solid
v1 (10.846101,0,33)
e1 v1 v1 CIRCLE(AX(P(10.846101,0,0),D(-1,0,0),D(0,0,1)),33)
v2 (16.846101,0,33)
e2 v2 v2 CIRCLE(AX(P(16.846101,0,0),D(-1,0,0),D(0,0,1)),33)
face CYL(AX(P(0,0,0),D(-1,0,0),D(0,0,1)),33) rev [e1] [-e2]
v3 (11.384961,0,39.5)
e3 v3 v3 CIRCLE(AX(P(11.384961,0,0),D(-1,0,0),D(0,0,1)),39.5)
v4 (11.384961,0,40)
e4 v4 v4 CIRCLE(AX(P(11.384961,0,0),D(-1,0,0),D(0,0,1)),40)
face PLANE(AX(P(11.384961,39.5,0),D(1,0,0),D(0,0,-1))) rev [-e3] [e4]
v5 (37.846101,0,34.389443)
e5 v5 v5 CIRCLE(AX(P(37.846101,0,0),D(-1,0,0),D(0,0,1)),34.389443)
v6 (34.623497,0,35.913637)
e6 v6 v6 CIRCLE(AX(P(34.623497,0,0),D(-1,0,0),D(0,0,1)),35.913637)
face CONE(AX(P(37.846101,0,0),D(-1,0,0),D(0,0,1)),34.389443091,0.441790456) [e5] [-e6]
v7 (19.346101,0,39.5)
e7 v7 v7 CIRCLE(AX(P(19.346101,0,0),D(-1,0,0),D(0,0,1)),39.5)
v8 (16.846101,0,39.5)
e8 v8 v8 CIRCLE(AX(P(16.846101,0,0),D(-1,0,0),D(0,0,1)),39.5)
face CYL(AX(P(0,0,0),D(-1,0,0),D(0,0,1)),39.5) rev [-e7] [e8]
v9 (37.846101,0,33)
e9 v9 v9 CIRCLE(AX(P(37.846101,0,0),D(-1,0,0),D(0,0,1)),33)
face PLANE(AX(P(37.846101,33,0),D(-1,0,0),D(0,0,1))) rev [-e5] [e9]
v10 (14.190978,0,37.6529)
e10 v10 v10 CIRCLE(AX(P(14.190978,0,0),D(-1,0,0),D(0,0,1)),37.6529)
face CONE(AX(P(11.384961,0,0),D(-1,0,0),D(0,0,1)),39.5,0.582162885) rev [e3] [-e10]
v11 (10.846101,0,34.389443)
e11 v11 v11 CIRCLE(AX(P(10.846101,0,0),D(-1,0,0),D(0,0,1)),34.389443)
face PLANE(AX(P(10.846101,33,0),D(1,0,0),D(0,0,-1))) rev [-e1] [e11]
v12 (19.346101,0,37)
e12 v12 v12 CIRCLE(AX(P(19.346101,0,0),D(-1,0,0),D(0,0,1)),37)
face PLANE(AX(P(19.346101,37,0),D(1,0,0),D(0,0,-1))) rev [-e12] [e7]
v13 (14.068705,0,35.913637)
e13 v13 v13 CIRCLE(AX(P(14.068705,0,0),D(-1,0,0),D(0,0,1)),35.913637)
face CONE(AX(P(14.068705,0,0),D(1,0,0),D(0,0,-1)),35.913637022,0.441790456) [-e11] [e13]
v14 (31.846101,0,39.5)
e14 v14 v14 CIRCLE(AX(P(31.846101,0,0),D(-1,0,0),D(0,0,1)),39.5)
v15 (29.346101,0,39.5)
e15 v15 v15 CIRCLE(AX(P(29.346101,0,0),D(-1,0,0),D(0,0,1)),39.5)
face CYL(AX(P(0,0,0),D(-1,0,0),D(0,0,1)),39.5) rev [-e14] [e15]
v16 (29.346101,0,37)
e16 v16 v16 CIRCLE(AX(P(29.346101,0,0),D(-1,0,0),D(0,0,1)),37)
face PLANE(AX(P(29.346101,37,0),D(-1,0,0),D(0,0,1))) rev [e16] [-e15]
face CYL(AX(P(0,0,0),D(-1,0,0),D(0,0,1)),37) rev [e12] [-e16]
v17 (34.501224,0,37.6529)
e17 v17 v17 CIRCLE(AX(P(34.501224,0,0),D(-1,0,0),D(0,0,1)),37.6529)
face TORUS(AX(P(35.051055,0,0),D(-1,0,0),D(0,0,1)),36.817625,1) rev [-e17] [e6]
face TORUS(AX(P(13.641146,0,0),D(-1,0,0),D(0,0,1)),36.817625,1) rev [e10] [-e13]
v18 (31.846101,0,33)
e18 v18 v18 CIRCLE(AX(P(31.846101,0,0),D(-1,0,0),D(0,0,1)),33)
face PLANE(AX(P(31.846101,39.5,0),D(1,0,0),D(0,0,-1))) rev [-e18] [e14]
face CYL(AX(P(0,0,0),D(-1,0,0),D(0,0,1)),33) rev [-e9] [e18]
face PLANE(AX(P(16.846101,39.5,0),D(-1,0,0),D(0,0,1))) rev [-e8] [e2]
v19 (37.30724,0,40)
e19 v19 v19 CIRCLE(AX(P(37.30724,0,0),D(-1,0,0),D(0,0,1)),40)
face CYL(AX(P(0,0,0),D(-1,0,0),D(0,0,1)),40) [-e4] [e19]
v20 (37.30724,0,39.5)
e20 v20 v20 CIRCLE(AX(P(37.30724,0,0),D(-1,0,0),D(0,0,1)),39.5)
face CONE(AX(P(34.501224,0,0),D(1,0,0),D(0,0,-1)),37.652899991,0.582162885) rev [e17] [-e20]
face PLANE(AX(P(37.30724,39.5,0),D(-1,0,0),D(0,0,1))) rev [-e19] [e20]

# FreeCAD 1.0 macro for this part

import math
import FreeCAD as App
import Part
import Sketcher

V = App.Vector

doc = App.newDocument("Part")
body = doc.addObject("PartDesign::Body", "Body")

sketch1 = body.newObject("Sketcher::SketchObject", "Sketch")
sketch1.AttachmentSupport = (doc.getObject("XY_Plane"), [""])
sketch1.MapMode = "FlatFace"
sketch1.addGeometry(Part.LineSegment(V(14.1, 35.9, 0), V(10.8, 34.4, 0)), False)
sketch1.addGeometry(Part.LineSegment(V(10.8, 34.4, 0), V(10.8, 33, 0)), False)
sketch1.addGeometry(Part.LineSegment(V(10.8, 33, 0), V(16.8, 33, 0)), False)
sketch1.addGeometry(Part.LineSegment(V(16.8, 33, 0), V(16.8, 39.5, 0)), False)
sketch1.addGeometry(Part.LineSegment(V(16.8, 39.5, 0), V(19.3, 39.5, 0)), False)
sketch1.addGeometry(Part.LineSegment(V(19.3, 39.5, 0), V(19.3, 37, 0)), False)
sketch1.addGeometry(Part.LineSegment(V(19.3, 37, 0), V(29.3, 37, 0)), False)
sketch1.addGeometry(Part.LineSegment(V(29.3, 37, 0), V(29.3, 39.5, 0)), False)
sketch1.addGeometry(Part.LineSegment(V(29.3, 39.5, 0), V(31.8, 39.5, 0)), False)
sketch1.addGeometry(Part.LineSegment(V(31.8, 39.5, 0), V(31.8, 33, 0)), False)
sketch1.addGeometry(Part.LineSegment(V(31.8, 33, 0), V(37.8, 33, 0)), False)
sketch1.addGeometry(Part.LineSegment(V(37.8, 33, 0), V(37.8, 34.4, 0)), False)
sketch1.addGeometry(Part.LineSegment(V(37.8, 34.4, 0), V(34.6, 35.9, 0)), False)
sketch1.addGeometry(Part.ArcOfCircle(Part.Circle(V(35.1, 36.8, 0), V(0, 0, 1), 1), math.radians(123), math.radians(245)), False)
sketch1.addGeometry(Part.LineSegment(V(34.5, 37.7, 0), V(37.3, 39.5, 0)), False)
sketch1.addGeometry(Part.LineSegment(V(37.3, 39.5, 0), V(37.3, 40, 0)), False)
sketch1.addGeometry(Part.LineSegment(V(37.3, 40, 0), V(11.4, 40, 0)), False)
sketch1.addGeometry(Part.LineSegment(V(11.4, 40, 0), V(11.4, 39.5, 0)), False)
sketch1.addGeometry(Part.LineSegment(V(11.4, 39.5, 0), V(14.2, 37.7, 0)), False)
sketch1.addGeometry(Part.ArcOfCircle(Part.Circle(V(13.6, 36.8, 0), V(0, 0, 1), 1), math.radians(-65), math.radians(57)), False)
sketch1.addConstraint(Sketcher.Constraint("Coincident", 0, 2, 1, 1))
sketch1.addConstraint(Sketcher.Constraint("Coincident", 1, 2, 2, 1))
sketch1.addConstraint(Sketcher.Constraint("Coincident", 2, 2, 3, 1))
sketch1.addConstraint(Sketcher.Constraint("Coincident", 3, 2, 4, 1))
sketch1.addConstraint(Sketcher.Constraint("Coincident", 4, 2, 5, 1))
sketch1.addConstraint(Sketcher.Constraint("Coincident", 5, 2, 6, 1))
sketch1.addConstraint(Sketcher.Constraint("Coincident", 6, 2, 7, 1))
sketch1.addConstraint(Sketcher.Constraint("Coincident", 7, 2, 8, 1))
sketch1.addConstraint(Sketcher.Constraint("Coincident", 8, 2, 9, 1))
sketch1.addConstraint(Sketcher.Constraint("Coincident", 9, 2, 10, 1))
sketch1.addConstraint(Sketcher.Constraint("Coincident", 10, 2, 11, 1))
sketch1.addConstraint(Sketcher.Constraint("Coincident", 11, 2, 12, 1))
sketch1.addConstraint(Sketcher.Constraint("Tangent", 12, 2, 13, 2))
sketch1.addConstraint(Sketcher.Constraint("Tangent", 13, 1, 14, 1))
sketch1.addConstraint(Sketcher.Constraint("Coincident", 14, 2, 15, 1))
sketch1.addConstraint(Sketcher.Constraint("Coincident", 15, 2, 16, 1))
sketch1.addConstraint(Sketcher.Constraint("Coincident", 16, 2, 17, 1))
sketch1.addConstraint(Sketcher.Constraint("Coincident", 17, 2, 18, 1))
sketch1.addConstraint(Sketcher.Constraint("Tangent", 18, 2, 19, 2))
sketch1.addConstraint(Sketcher.Constraint("Tangent", 19, 1, 0, 1))
sketch1.addConstraint(Sketcher.Constraint("Vertical", 1))
sketch1.addConstraint(Sketcher.Constraint("Horizontal", 2))
sketch1.addConstraint(Sketcher.Constraint("Vertical", 3))
sketch1.addConstraint(Sketcher.Constraint("Horizontal", 4))
sketch1.addConstraint(Sketcher.Constraint("Vertical", 5))
sketch1.addConstraint(Sketcher.Constraint("Horizontal", 6))
sketch1.addConstraint(Sketcher.Constraint("Vertical", 7))
sketch1.addConstraint(Sketcher.Constraint("Horizontal", 8))
sketch1.addConstraint(Sketcher.Constraint("Vertical", 9))
sketch1.addConstraint(Sketcher.Constraint("Horizontal", 10))
sketch1.addConstraint(Sketcher.Constraint("Vertical", 11))
sketch1.addConstraint(Sketcher.Constraint("Vertical", 15))
sketch1.addConstraint(Sketcher.Constraint("Horizontal", 16))
sketch1.addConstraint(Sketcher.Constraint("Vertical", 17))
sketch1.addConstraint(Sketcher.Constraint("Equal", 13, 19))
sketch1.addConstraint(Sketcher.Constraint("Horizontal", 13, 3, 19, 3))
sketch1.addConstraint(Sketcher.Constraint("Horizontal", 4, 2, 7, 2))
sketch1.addConstraint(Sketcher.Constraint("Horizontal", 2, 2, 9, 2))
sketch1.addConstraint(Sketcher.Constraint("Horizontal", 0, 2, 11, 2))
sketch1.addConstraint(Sketcher.Constraint("Horizontal", 8, 2, 14, 2))
sketch1.addConstraint(Sketcher.Constraint("Horizontal", 14, 2, 17, 2))
sketch1.addConstraint(Sketcher.Constraint("Horizontal", 13, 1, 18, 2))
sketch1.addConstraint(Sketcher.Constraint("Horizontal", 12, 2, 19, 1))
sketch1.addConstraint(Sketcher.Constraint("Equal", 4, 8))
sketch1.addConstraint(Sketcher.Constraint("Equal", 2, 10))
sketch1.addConstraint(Sketcher.Constraint("Equal", 8, 5))
sketch1.addConstraint(Sketcher.Constraint("Radius", 13, 1.0))
sketch1.addConstraint(Sketcher.Constraint("DistanceX", 2, 1, 2, 2, 6.0))
sketch1.addConstraint(Sketcher.Constraint("DistanceX", 6, 1, 6, 2, 10.0))
sketch1.addConstraint(Sketcher.Constraint("DistanceX", 4, 1, 4, 2, 2.5))
sketch1.addConstraint(Sketcher.Constraint("DistanceY", 3, 1, 3, 2, 6.5))
sketch1.addConstraint(Sketcher.Constraint("DistanceY", 15, 1, 15, 2, 0.5))
sketch1.addConstraint(Sketcher.Constraint("DistanceY", -1, 1, 1, 2, 33.0))
sketch1.addConstraint(Sketcher.Constraint("DistanceX", 16, 2, 16, 1, 25.922279))
sketch1.addConstraint(Sketcher.Constraint("DistanceX", -1, 1, 0, 2, 10.846101))
sketch1.addConstraint(Sketcher.Constraint("DistanceY", -1, 1, 13, 1, 37.6529))
sketch1.addConstraint(Sketcher.Constraint("Distance", 14, 3.359391))
sketch1.addConstraint(Sketcher.Constraint("DistanceY", 1, 2, 1, 1, 1.389443))
revolution = body.newObject("PartDesign::Revolution", "Revolution")
revolution.Profile = sketch1
revolution.ReferenceAxis = (sketch1, ["H_Axis"])
revolution.Angle = 360

doc.recompute()
